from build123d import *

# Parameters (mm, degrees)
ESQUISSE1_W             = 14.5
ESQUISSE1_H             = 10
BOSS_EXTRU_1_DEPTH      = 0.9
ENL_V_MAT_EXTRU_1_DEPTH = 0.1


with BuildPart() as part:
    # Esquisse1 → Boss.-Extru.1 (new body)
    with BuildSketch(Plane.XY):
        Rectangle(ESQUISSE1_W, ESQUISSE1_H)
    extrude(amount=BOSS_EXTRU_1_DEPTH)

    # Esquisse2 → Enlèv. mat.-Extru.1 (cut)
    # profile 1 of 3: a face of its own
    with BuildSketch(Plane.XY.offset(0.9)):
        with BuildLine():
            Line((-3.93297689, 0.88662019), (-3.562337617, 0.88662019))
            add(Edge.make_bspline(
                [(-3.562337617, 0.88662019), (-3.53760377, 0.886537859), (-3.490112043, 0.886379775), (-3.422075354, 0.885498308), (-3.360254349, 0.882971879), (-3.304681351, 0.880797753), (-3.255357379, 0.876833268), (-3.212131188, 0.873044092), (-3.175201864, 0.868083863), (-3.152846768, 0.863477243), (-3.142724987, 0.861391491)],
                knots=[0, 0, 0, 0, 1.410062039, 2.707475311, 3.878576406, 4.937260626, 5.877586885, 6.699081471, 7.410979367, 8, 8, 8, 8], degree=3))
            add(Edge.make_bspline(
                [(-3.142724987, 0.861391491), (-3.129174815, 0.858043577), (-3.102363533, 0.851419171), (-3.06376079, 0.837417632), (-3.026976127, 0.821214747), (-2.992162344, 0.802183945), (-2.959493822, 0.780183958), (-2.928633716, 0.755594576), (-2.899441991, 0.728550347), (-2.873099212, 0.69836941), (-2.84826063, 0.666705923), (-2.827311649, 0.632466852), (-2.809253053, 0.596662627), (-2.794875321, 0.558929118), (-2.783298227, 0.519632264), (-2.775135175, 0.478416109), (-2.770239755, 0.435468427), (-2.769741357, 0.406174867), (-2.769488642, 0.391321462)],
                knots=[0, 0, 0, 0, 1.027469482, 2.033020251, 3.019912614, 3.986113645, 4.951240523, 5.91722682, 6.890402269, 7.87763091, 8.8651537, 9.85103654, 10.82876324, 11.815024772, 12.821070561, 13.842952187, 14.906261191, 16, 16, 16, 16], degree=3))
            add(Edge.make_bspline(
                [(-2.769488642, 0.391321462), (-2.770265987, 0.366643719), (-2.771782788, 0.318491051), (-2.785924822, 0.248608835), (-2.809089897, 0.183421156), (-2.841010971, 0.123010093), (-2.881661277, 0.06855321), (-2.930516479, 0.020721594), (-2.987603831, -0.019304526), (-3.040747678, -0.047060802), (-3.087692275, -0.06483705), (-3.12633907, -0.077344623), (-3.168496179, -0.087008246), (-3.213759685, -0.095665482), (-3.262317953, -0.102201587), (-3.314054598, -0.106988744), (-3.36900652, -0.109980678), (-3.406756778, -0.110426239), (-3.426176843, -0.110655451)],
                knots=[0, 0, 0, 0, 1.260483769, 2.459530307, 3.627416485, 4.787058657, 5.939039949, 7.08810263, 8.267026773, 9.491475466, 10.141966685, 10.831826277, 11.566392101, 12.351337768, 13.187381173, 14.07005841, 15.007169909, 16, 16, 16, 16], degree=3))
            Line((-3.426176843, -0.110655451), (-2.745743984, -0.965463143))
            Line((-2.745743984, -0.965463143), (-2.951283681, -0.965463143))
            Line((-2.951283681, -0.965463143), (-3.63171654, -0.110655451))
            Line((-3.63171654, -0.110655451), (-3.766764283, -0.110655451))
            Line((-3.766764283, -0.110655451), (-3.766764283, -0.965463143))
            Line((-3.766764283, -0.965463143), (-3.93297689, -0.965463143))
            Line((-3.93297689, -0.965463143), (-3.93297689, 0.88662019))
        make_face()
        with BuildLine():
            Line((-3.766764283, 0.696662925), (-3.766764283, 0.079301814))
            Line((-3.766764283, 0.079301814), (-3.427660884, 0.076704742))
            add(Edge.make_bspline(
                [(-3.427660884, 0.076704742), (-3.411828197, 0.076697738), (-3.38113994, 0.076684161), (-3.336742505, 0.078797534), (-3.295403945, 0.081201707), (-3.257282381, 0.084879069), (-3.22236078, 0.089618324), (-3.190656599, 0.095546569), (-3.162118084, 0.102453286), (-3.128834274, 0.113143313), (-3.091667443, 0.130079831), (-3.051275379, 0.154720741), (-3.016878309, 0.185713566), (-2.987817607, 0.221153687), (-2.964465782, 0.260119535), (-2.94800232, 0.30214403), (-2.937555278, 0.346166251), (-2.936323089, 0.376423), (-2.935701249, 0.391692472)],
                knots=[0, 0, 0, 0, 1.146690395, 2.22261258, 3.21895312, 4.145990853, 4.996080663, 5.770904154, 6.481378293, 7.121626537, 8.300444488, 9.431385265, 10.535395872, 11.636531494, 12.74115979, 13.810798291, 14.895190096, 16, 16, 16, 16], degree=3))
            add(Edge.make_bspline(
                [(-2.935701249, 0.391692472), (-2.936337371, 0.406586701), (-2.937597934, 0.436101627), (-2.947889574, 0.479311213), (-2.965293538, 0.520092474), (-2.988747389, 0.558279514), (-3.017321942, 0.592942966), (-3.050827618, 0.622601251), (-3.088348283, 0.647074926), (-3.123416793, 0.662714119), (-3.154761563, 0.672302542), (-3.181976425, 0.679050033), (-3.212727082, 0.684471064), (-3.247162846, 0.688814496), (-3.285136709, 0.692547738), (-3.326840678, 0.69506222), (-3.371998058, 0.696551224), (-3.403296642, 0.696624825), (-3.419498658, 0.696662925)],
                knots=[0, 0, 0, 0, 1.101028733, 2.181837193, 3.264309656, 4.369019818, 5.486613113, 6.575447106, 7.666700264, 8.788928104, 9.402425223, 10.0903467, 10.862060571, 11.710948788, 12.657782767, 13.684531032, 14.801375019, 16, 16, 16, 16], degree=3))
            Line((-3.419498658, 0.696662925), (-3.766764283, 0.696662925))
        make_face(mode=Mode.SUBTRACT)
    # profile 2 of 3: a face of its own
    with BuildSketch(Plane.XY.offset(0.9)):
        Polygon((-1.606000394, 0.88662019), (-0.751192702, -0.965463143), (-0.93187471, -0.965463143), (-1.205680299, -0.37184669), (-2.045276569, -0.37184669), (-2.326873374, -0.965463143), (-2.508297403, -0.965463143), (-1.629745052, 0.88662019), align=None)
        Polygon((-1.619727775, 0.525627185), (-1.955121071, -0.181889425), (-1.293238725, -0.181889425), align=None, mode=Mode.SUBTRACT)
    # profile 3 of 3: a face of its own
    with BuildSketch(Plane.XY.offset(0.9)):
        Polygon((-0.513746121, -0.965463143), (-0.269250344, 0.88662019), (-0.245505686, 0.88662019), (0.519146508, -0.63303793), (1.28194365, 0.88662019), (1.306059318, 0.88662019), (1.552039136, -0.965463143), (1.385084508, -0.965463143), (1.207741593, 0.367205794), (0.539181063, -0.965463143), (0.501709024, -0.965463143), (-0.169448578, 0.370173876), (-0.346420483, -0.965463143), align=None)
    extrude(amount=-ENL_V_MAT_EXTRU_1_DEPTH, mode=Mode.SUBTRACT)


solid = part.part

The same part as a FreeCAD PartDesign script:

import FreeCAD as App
import Part
import Sketcher

V = App.Vector
Q = App.Units.Quantity


def add_polygon(sketch, points):
    """Adds a closed chain of lines whose ends are joined by coincident constraints."""
    first, n = sketch.GeometryCount, len(points)
    for a, b in zip(points, points[1:] + points[:1]):
        sketch.addGeometry(Part.LineSegment(App.Vector(*a, 0), App.Vector(*b, 0)), False)
    for i in range(n):
        sketch.addConstraint(Sketcher.Constraint("Coincident", first + i, 2, first + (i + 1) % n, 1))

doc = App.newDocument("Part")
body = doc.addObject("PartDesign::Body", "Body")

# Sketch on XY plane
sketch1 = body.newObject("Sketcher::SketchObject", "Sketch")
sketch1.AttachmentSupport = (doc.getObject("XY_Plane"), [""])
sketch1.MapMode = "FlatFace"
add_polygon(sketch1, [(-7.25, 5), (-7.25, -5), (7.25, -5), (7.25, 5)])  # lines 0-3
sketch1.addConstraint([
    Sketcher.Constraint("Vertical", 0),
    Sketcher.Constraint("Horizontal", 1),
    Sketcher.Constraint("Vertical", 2),
    Sketcher.Constraint("Horizontal", 3),
    Sketcher.Constraint("Symmetric", 0, 2, 2, 2, -1, 1),
    Sketcher.Constraint("DistanceY", 0, 2, 0, 1, 10.0),
    Sketcher.Constraint("DistanceX", 1, 1, 1, 2, 14.5),
])
pad1 = body.newObject("PartDesign::Pad", "Pad")
pad1.Profile = sketch1
pad1.Length = 0.9

# Sketch on XY plane
sketch2 = body.newObject("Sketcher::SketchObject", "Sketch001")
sketch2.AttachmentSupport = (doc.getObject("XY_Plane"), [""])
sketch2.MapMode = "FlatFace"
sketch2.AttachmentOffset = App.Placement(V(0, 0, 0.9), App.Rotation())
sketch2.addGeometry(Part.LineSegment(V(-3.562338, 0.88662, 0), V(-3.932977, 0.88662, 0)), False)  # 0
sketch2.addGeometry(Part.LineSegment(V(-3.932977, 0.88662, 0), V(-3.932977, -0.965463, 0)), False)  # 1
sketch2.addGeometry(Part.LineSegment(V(-3.932977, -0.965463, 0), V(-3.766764, -0.965463, 0)), False)  # 2
sketch2.addGeometry(Part.LineSegment(V(-3.766764, -0.965463, 0), V(-3.766764, -0.110655, 0)), False)  # 3
sketch2.addGeometry(Part.LineSegment(V(-3.766764, -0.110655, 0), V(-3.631717, -0.110655, 0)), False)  # 4
sketch2.addGeometry(Part.LineSegment(V(-3.631717, -0.110655, 0), V(-2.951284, -0.965463, 0)), False)  # 5
sketch2.addGeometry(Part.LineSegment(V(-2.951284, -0.965463, 0), V(-2.745744, -0.965463, 0)), False)  # 6
sketch2.addGeometry(Part.LineSegment(V(-2.745744, -0.965463, 0), V(-3.426177, -0.110655, 0)), False)  # 7
sketch2.addGeometry(Part.BSplineCurve([V(-2.769489, 0.391321, 0), V(-2.770266, 0.366644, 0), V(-2.771783, 0.318491, 0), V(-2.785925, 0.248609, 0), V(-2.80909, 0.183421, 0), V(-2.841011, 0.12301, 0), V(-2.881661, 0.068553, 0), V(-2.930516, 0.020722, 0), V(-2.987604, -0.019305, 0), V(-3.040748, -0.047061, 0), V(-3.087692, -0.064837, 0), V(-3.126339, -0.077345, 0), V(-3.168496, -0.087008, 0), V(-3.21376, -0.095665, 0), V(-3.262318, -0.102202, 0), V(-3.314055, -0.106989, 0), V(-3.369007, -0.109981, 0), V(-3.406757, -0.110426, 0), V(-3.426177, -0.110655, 0)], [4, 1, 1, 1, 1, 1, 1, 1, 1, 1, 1, 1, 1, 1, 1, 1, 4], [0, 1.260483769, 2.459530307, 3.627416485, 4.787058657, 5.939039949, 7.08810263, 8.267026773, 9.491475466, 10.141966685, 10.831826277, 11.566392101, 12.351337768, 13.187381173, 14.07005841, 15.007169909, 16], False, 3, [1, 1, 1, 1, 1, 1, 1, 1, 1, 1, 1, 1, 1, 1, 1, 1, 1, 1, 1], False), False)  # 8
sketch2.addGeometry(Part.BSplineCurve([V(-3.142725, 0.861391, 0), V(-3.129175, 0.858044, 0), V(-3.102364, 0.851419, 0), V(-3.063761, 0.837418, 0), V(-3.026976, 0.821215, 0), V(-2.992162, 0.802184, 0), V(-2.959494, 0.780184, 0), V(-2.928634, 0.755595, 0), V(-2.899442, 0.72855, 0), V(-2.873099, 0.698369, 0), V(-2.848261, 0.666706, 0), V(-2.827312, 0.632467, 0), V(-2.809253, 0.596663, 0), V(-2.794875, 0.558929, 0), V(-2.783298, 0.519632, 0), V(-2.775135, 0.478416, 0), V(-2.77024, 0.435468, 0), V(-2.769741, 0.406175, 0), V(-2.769489, 0.391321, 0)], [4, 1, 1, 1, 1, 1, 1, 1, 1, 1, 1, 1, 1, 1, 1, 1, 4], [0, 1.027469482, 2.033020251, 3.019912614, 3.986113645, 4.951240523, 5.91722682, 6.890402269, 7.87763091, 8.8651537, 9.85103654, 10.82876324, 11.815024772, 12.821070561, 13.842952187, 14.906261191, 16], False, 3, [1, 1, 1, 1, 1, 1, 1, 1, 1, 1, 1, 1, 1, 1, 1, 1, 1, 1, 1], False), False)  # 9
sketch2.addGeometry(Part.BSplineCurve([V(-3.562338, 0.88662, 0), V(-3.537604, 0.886538, 0), V(-3.490112, 0.88638, 0), V(-3.422075, 0.885498, 0), V(-3.360254, 0.882972, 0), V(-3.304681, 0.880798, 0), V(-3.255357, 0.876833, 0), V(-3.212131, 0.873044, 0), V(-3.175202, 0.868084, 0), V(-3.152847, 0.863477, 0), V(-3.142725, 0.861391, 0)], [4, 1, 1, 1, 1, 1, 1, 1, 4], [0, 1.410062039, 2.707475311, 3.878576406, 4.937260626, 5.877586885, 6.699081471, 7.410979367, 8], False, 3, [1, 1, 1, 1, 1, 1, 1, 1, 1, 1, 1], False), False)  # 10
sketch2.addGeometry(Part.LineSegment(V(-3.766764, 0.696663, 0), V(-3.419499, 0.696663, 0)), False)  # 11
sketch2.addGeometry(Part.BSplineCurve([V(-2.935701, 0.391692, 0), V(-2.936337, 0.406587, 0), V(-2.937598, 0.436102, 0), V(-2.94789, 0.479311, 0), V(-2.965294, 0.520092, 0), V(-2.988747, 0.55828, 0), V(-3.017322, 0.592943, 0), V(-3.050828, 0.622601, 0), V(-3.088348, 0.647075, 0), V(-3.123417, 0.662714, 0), V(-3.154762, 0.672303, 0), V(-3.181976, 0.67905, 0), V(-3.212727, 0.684471, 0), V(-3.247163, 0.688814, 0), V(-3.285137, 0.692548, 0), V(-3.326841, 0.695062, 0), V(-3.371998, 0.696551, 0), V(-3.403297, 0.696625, 0), V(-3.419499, 0.696663, 0)], [4, 1, 1, 1, 1, 1, 1, 1, 1, 1, 1, 1, 1, 1, 1, 1, 4], [0, 1.101028733, 2.181837193, 3.264309656, 4.369019818, 5.486613113, 6.575447106, 7.666700264, 8.788928104, 9.402425223, 10.0903467, 10.862060571, 11.710948788, 12.657782767, 13.684531032, 14.801375019, 16], False, 3, [1, 1, 1, 1, 1, 1, 1, 1, 1, 1, 1, 1, 1, 1, 1, 1, 1, 1, 1], False), False)  # 12
sketch2.addGeometry(Part.BSplineCurve([V(-3.427661, 0.076705, 0), V(-3.411828, 0.076698, 0), V(-3.38114, 0.076684, 0), V(-3.336743, 0.078798, 0), V(-3.295404, 0.081202, 0), V(-3.257282, 0.084879, 0), V(-3.222361, 0.089618, 0), V(-3.190657, 0.095547, 0), V(-3.162118, 0.102453, 0), V(-3.128834, 0.113143, 0), V(-3.091667, 0.13008, 0), V(-3.051275, 0.154721, 0), V(-3.016878, 0.185714, 0), V(-2.987818, 0.221154, 0), V(-2.964466, 0.26012, 0), V(-2.948002, 0.302144, 0), V(-2.937555, 0.346166, 0), V(-2.936323, 0.376423, 0), V(-2.935701, 0.391692, 0)], [4, 1, 1, 1, 1, 1, 1, 1, 1, 1, 1, 1, 1, 1, 1, 1, 4], [0, 1.146690395, 2.22261258, 3.21895312, 4.145990853, 4.996080663, 5.770904154, 6.481378293, 7.121626537, 8.300444488, 9.431385265, 10.535395872, 11.636531494, 12.74115979, 13.810798291, 14.895190096, 16], False, 3, [1, 1, 1, 1, 1, 1, 1, 1, 1, 1, 1, 1, 1, 1, 1, 1, 1, 1, 1], False), False)  # 13
sketch2.addGeometry(Part.LineSegment(V(-3.427661, 0.076705, 0), V(-3.766764, 0.079302, 0)), False)  # 14
sketch2.addGeometry(Part.LineSegment(V(-3.766764, 0.079302, 0), V(-3.766764, 0.696663, 0)), False)  # 15
add_polygon(sketch2, [(-0.751193, -0.965463), (-1.606, 0.88662), (-1.629745, 0.88662), (-2.508297, -0.965463), (-2.326873, -0.965463), (-2.045277, -0.371847), (-1.20568, -0.371847), (-0.931875, -0.965463)])  # lines 16-23
add_polygon(sketch2, [(-1.619728, 0.525627), (-1.293239, -0.181889), (-1.955121, -0.181889)])  # lines 24-26
add_polygon(sketch2, [(-0.26925, 0.88662), (-0.513746, -0.965463), (-0.34642, -0.965463), (-0.169449, 0.370174), (0.501709, -0.965463), (0.539181, -0.965463), (1.207742, 0.367206), (1.385085, -0.965463), (1.552039, -0.965463), (1.306059, 0.88662), (1.281944, 0.88662), (0.519147, -0.633038), (-0.245506, 0.88662)])  # lines 27-39
sketch2.addConstraint([
    Sketcher.Constraint("Block", 8),
    Sketcher.Constraint("Block", 9),
    Sketcher.Constraint("Block", 10),
    Sketcher.Constraint("Block", 12),
    Sketcher.Constraint("Block", 13),
    Sketcher.Constraint("Coincident", 0, 2, 1, 1),
    Sketcher.Constraint("Coincident", 1, 2, 2, 1),
    Sketcher.Constraint("Coincident", 2, 2, 3, 1),
    Sketcher.Constraint("Coincident", 3, 2, 4, 1),
    Sketcher.Constraint("Coincident", 4, 2, 5, 1),
    Sketcher.Constraint("Coincident", 5, 2, 6, 1),
    Sketcher.Constraint("Coincident", 6, 2, 7, 1),
    Sketcher.Constraint("Coincident", 7, 2, 8, 2),
    Sketcher.Constraint("Coincident", 10, 1, 0, 1),
    Sketcher.Constraint("Coincident", 11, 2, 12, 2),
    Sketcher.Constraint("Coincident", 13, 1, 14, 1),
    Sketcher.Constraint("Coincident", 14, 2, 15, 1),
    Sketcher.Constraint("Coincident", 15, 2, 11, 1),
    Sketcher.Constraint("Horizontal", 0),
    Sketcher.Constraint("Vertical", 1),
    Sketcher.Constraint("Horizontal", 2),
    Sketcher.Constraint("Vertical", 3),
    Sketcher.Constraint("Horizontal", 4),
    Sketcher.Constraint("Horizontal", 6),
    Sketcher.Constraint("Horizontal", 11),
    Sketcher.Constraint("Vertical", 15),
    Sketcher.Constraint("Horizontal", 17),
    Sketcher.Constraint("Horizontal", 19),
    Sketcher.Constraint("Horizontal", 21),
    Sketcher.Constraint("Horizontal", 23),
    Sketcher.Constraint("Horizontal", 25),
    Sketcher.Constraint("Horizontal", 28),
    Sketcher.Constraint("Horizontal", 31),
    Sketcher.Constraint("Horizontal", 34),
    Sketcher.Constraint("Horizontal", 36),
    Sketcher.Constraint("Horizontal", 39),
    Sketcher.Constraint("Parallel", 5, 7),
    Sketcher.Constraint("Horizontal", 2, 2, 5, 2),
    Sketcher.Constraint("Horizontal", 4, 2, 7, 2),
    Sketcher.Constraint("Horizontal", 0, 2, 16, 2),
    Sketcher.Constraint("Horizontal", 6, 2, 18, 2),
    Sketcher.Constraint("Horizontal", 19, 2, 22, 2),
    Sketcher.Constraint("Horizontal", 23, 2, 27, 2),
    Sketcher.Constraint("Horizontal", 28, 2, 30, 2),
    Sketcher.Constraint("Horizontal", 31, 2, 33, 2),
    Sketcher.Constraint("Horizontal", 17, 2, 35, 2),
    Sketcher.Constraint("Horizontal", 36, 2, 38, 2),
    Sketcher.Constraint("Vertical", 3, 2, 14, 2),
    Sketcher.Constraint("Equal", 17, 39),
    Sketcher.Constraint("Angle", 33, Q("-82.419985 deg")),
    Sketcher.Constraint("DistanceX", 16, 2, -1, 1, 1.606),
    Sketcher.Constraint("DistanceX", 6, 2, 17, 2, 1.115999),
    Sketcher.Constraint("DistanceX", 19, 2, 22, 2, 1.394999),
    Sketcher.Constraint("DistanceX", 0, 2, 0, 1, 0.370639),
    Sketcher.Constraint("DistanceX", 6, 1, 6, 2, 0.20554),
    Sketcher.Constraint("DistanceY", 15, 1, 15, 2, 0.617361),
    Sketcher.Constraint("DistanceX", 20, 2, 22, 2, 1.113402),
    Sketcher.Constraint("DistanceX", 23, 2, 30, 2, 1.252902),
    Sketcher.Constraint("DistanceX", 28, 2, 31, 2, 0.885602),
    Sketcher.Constraint("DistanceX", 39, 2, 29, 2, 0.099802),
    Sketcher.Constraint("Distance", 5, 1.092559),
    Sketcher.Constraint("Distance", 16, 2.039831),
    Sketcher.Constraint("Distance", 20, 0.657022),
    Sketcher.Constraint("Distance", 22, 0.65372),
    Sketcher.Constraint("Distance", 27, 1.868152),
    Sketcher.Constraint("Distance", 29, 1.34731),
    Sketcher.Constraint("Distance", 37, 1.700359),
    Sketcher.Constraint("Distance", 38, 1.701192),
    Sketcher.Constraint("DistanceX", 2, 1, 2, 2, 0.166213),
    Sketcher.Constraint("DistanceX", 17, 2, 17, 1, 0.023745),
    Sketcher.Constraint("DistanceX", 19, 1, 19, 2, 0.181424),
    Sketcher.Constraint("DistanceX", 23, 1, 23, 2, 0.180682),
    Sketcher.Constraint("DistanceX", 25, 2, 25, 1, 0.661882),
    Sketcher.Constraint("DistanceX", 28, 1, 28, 2, 0.167326),
    Sketcher.Constraint("DistanceX", 31, 1, 31, 2, 0.037472),
    Sketcher.Constraint("DistanceX", 34, 1, 34, 2, 0.166955),
    Sketcher.Constraint("DistanceX", 36, 2, 36, 1, 0.024116),
    Sketcher.Constraint("DistanceX", 24, 2, -1, 1, 1.293239),
    Sketcher.Constraint("DistanceY", 24, 2, -1, 1, 0.181889),
    Sketcher.Constraint("DistanceX", -1, 1, 32, 2, 1.207742),
    Sketcher.Constraint("DistanceX", -1, 1, 34, 2, 1.552039),
    Sketcher.Constraint("DistanceX", -1, 1, 35, 2, 1.306059),
    Sketcher.Constraint("DistanceX", 26, 2, 24, 2, 0.326489),
    Sketcher.Constraint("Distance", 24, 0.779214),
])
pocket1 = body.newObject("PartDesign::Pocket", "Pocket")
pocket1.Profile = sketch2
pocket1.Length = 0.1

doc.recompute()
